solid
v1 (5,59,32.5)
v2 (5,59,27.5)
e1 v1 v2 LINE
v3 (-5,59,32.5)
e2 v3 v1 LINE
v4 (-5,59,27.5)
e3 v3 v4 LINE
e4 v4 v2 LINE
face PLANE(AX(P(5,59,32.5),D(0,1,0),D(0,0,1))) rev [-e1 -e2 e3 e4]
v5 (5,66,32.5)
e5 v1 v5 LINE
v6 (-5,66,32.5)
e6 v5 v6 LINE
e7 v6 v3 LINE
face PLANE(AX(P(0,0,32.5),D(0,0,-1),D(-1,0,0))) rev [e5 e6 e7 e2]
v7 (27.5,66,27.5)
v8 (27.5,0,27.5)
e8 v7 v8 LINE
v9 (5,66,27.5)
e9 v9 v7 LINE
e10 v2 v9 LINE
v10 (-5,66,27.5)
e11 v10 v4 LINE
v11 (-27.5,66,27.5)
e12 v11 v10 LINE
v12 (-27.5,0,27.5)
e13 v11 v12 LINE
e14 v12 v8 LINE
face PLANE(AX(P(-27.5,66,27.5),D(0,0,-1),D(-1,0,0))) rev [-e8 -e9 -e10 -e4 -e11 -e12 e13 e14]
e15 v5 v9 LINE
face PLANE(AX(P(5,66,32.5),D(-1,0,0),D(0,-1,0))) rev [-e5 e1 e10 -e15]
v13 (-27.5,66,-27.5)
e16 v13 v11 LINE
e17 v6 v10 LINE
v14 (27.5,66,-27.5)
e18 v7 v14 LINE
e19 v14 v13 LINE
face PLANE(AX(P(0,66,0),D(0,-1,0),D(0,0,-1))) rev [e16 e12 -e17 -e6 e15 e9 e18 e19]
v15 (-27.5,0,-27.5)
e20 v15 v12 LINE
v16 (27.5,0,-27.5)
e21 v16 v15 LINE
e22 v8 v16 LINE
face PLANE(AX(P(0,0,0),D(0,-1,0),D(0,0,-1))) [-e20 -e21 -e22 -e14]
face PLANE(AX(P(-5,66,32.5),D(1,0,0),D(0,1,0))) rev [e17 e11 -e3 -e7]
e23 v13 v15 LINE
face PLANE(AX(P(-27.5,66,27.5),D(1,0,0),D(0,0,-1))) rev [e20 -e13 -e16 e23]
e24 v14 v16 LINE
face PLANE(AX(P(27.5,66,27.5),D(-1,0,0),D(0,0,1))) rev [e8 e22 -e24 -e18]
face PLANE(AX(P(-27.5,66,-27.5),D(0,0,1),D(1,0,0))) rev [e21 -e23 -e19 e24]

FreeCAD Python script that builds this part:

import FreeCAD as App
import Part
import Sketcher
from FreeCAD import Vector
Q = App.Units.Quantity

doc = App.newDocument("Part")
body = doc.addObject("PartDesign::Body", "Body")

# Sketch on XZ plane
sketch1 = doc.addObject("Sketcher::SketchObject", "Sketch")
body.addObject(sketch1)
sketch1.AttachmentSupport = (doc.XZ_Plane, [""])
sketch1.MapMode = "FlatFace"
sketch1.addGeometry(Part.LineSegment(Vector(-28, -28, 0), Vector(-28, 28, 0)), False)
sketch1.addGeometry(Part.LineSegment(Vector(-28, 28, 0), Vector(28, 28, 0)), False)
sketch1.addGeometry(Part.LineSegment(Vector(28, 28, 0), Vector(28, -28, 0)), False)
sketch1.addGeometry(Part.LineSegment(Vector(28, -28, 0), Vector(-28, -28, 0)), False)
sketch1.addConstraint(Sketcher.Constraint("Coincident", 0, 2, 1, 1))
sketch1.addConstraint(Sketcher.Constraint("Coincident", 1, 2, 2, 1))
sketch1.addConstraint(Sketcher.Constraint("Coincident", 2, 2, 3, 1))
sketch1.addConstraint(Sketcher.Constraint("Coincident", 3, 2, 0, 1))
sketch1.addConstraint(Sketcher.Constraint("Vertical", 0))
sketch1.addConstraint(Sketcher.Constraint("Horizontal", 1))
sketch1.addConstraint(Sketcher.Constraint("Vertical", 2))
sketch1.addConstraint(Sketcher.Constraint("Horizontal", 3))
sketch1.addConstraint(Sketcher.Constraint("Symmetric", 0, 2, 2, 2, -1, 1))
sketch1.addConstraint(Sketcher.Constraint("Equal", 3, 0))
sketch1.addConstraint(Sketcher.Constraint("DistanceX", 1, 1, 1, 2, Q("55 mm")))
pad1 = doc.addObject("PartDesign::Pad", "Pad")
body.addObject(pad1)
pad1.Profile = sketch1
pad1.Length = 66
pad1.Reversed = True

# Sketch on XY plane
sketch2 = doc.addObject("Sketcher::SketchObject", "Sketch001")
body.addObject(sketch2)
sketch2.AttachmentSupport = (doc.XY_Plane, [""])
sketch2.MapMode = "FlatFace"
sketch2.AttachmentOffset = App.Placement(Vector(0, 0, 27.5), App.Rotation())
sketch2.addGeometry(Part.LineSegment(Vector(-5, 66, 0), Vector(-5, 59, 0)), False)
sketch2.addGeometry(Part.LineSegment(Vector(-5, 59, 0), Vector(5, 59, 0)), False)
sketch2.addGeometry(Part.LineSegment(Vector(5, 59, 0), Vector(5, 66, 0)), False)
sketch2.addGeometry(Part.LineSegment(Vector(5, 66, 0), Vector(-5, 66, 0)), False)
sketch2.addConstraint(Sketcher.Constraint("Coincident", 0, 2, 1, 1))
sketch2.addConstraint(Sketcher.Constraint("Coincident", 1, 2, 2, 1))
sketch2.addConstraint(Sketcher.Constraint("Coincident", 2, 2, 3, 1))
sketch2.addConstraint(Sketcher.Constraint("Coincident", 3, 2, 0, 1))
sketch2.addConstraint(Sketcher.Constraint("Vertical", 0))
sketch2.addConstraint(Sketcher.Constraint("Horizontal", 1))
sketch2.addConstraint(Sketcher.Constraint("Vertical", 2))
sketch2.addConstraint(Sketcher.Constraint("Horizontal", 3))
sketch2.addConstraint(Sketcher.Constraint("DistanceX", 1, 1, 1, 2, Q("10 mm")))
sketch2.addConstraint(Sketcher.Constraint("DistanceY", 0, 2, 0, 1, Q("7 mm")))
sketch2.addConstraint(Sketcher.Constraint("DistanceX", 0, 2, -1, 1, Q("5 mm")))
sketch2.addConstraint(Sketcher.Constraint("DistanceY", -1, 1, 0, 2, Q("59 mm")))
pad2 = doc.addObject("PartDesign::Pad", "Pad001")
body.addObject(pad2)
pad2.Profile = sketch2
pad2.Length = 5

doc.recompute()
